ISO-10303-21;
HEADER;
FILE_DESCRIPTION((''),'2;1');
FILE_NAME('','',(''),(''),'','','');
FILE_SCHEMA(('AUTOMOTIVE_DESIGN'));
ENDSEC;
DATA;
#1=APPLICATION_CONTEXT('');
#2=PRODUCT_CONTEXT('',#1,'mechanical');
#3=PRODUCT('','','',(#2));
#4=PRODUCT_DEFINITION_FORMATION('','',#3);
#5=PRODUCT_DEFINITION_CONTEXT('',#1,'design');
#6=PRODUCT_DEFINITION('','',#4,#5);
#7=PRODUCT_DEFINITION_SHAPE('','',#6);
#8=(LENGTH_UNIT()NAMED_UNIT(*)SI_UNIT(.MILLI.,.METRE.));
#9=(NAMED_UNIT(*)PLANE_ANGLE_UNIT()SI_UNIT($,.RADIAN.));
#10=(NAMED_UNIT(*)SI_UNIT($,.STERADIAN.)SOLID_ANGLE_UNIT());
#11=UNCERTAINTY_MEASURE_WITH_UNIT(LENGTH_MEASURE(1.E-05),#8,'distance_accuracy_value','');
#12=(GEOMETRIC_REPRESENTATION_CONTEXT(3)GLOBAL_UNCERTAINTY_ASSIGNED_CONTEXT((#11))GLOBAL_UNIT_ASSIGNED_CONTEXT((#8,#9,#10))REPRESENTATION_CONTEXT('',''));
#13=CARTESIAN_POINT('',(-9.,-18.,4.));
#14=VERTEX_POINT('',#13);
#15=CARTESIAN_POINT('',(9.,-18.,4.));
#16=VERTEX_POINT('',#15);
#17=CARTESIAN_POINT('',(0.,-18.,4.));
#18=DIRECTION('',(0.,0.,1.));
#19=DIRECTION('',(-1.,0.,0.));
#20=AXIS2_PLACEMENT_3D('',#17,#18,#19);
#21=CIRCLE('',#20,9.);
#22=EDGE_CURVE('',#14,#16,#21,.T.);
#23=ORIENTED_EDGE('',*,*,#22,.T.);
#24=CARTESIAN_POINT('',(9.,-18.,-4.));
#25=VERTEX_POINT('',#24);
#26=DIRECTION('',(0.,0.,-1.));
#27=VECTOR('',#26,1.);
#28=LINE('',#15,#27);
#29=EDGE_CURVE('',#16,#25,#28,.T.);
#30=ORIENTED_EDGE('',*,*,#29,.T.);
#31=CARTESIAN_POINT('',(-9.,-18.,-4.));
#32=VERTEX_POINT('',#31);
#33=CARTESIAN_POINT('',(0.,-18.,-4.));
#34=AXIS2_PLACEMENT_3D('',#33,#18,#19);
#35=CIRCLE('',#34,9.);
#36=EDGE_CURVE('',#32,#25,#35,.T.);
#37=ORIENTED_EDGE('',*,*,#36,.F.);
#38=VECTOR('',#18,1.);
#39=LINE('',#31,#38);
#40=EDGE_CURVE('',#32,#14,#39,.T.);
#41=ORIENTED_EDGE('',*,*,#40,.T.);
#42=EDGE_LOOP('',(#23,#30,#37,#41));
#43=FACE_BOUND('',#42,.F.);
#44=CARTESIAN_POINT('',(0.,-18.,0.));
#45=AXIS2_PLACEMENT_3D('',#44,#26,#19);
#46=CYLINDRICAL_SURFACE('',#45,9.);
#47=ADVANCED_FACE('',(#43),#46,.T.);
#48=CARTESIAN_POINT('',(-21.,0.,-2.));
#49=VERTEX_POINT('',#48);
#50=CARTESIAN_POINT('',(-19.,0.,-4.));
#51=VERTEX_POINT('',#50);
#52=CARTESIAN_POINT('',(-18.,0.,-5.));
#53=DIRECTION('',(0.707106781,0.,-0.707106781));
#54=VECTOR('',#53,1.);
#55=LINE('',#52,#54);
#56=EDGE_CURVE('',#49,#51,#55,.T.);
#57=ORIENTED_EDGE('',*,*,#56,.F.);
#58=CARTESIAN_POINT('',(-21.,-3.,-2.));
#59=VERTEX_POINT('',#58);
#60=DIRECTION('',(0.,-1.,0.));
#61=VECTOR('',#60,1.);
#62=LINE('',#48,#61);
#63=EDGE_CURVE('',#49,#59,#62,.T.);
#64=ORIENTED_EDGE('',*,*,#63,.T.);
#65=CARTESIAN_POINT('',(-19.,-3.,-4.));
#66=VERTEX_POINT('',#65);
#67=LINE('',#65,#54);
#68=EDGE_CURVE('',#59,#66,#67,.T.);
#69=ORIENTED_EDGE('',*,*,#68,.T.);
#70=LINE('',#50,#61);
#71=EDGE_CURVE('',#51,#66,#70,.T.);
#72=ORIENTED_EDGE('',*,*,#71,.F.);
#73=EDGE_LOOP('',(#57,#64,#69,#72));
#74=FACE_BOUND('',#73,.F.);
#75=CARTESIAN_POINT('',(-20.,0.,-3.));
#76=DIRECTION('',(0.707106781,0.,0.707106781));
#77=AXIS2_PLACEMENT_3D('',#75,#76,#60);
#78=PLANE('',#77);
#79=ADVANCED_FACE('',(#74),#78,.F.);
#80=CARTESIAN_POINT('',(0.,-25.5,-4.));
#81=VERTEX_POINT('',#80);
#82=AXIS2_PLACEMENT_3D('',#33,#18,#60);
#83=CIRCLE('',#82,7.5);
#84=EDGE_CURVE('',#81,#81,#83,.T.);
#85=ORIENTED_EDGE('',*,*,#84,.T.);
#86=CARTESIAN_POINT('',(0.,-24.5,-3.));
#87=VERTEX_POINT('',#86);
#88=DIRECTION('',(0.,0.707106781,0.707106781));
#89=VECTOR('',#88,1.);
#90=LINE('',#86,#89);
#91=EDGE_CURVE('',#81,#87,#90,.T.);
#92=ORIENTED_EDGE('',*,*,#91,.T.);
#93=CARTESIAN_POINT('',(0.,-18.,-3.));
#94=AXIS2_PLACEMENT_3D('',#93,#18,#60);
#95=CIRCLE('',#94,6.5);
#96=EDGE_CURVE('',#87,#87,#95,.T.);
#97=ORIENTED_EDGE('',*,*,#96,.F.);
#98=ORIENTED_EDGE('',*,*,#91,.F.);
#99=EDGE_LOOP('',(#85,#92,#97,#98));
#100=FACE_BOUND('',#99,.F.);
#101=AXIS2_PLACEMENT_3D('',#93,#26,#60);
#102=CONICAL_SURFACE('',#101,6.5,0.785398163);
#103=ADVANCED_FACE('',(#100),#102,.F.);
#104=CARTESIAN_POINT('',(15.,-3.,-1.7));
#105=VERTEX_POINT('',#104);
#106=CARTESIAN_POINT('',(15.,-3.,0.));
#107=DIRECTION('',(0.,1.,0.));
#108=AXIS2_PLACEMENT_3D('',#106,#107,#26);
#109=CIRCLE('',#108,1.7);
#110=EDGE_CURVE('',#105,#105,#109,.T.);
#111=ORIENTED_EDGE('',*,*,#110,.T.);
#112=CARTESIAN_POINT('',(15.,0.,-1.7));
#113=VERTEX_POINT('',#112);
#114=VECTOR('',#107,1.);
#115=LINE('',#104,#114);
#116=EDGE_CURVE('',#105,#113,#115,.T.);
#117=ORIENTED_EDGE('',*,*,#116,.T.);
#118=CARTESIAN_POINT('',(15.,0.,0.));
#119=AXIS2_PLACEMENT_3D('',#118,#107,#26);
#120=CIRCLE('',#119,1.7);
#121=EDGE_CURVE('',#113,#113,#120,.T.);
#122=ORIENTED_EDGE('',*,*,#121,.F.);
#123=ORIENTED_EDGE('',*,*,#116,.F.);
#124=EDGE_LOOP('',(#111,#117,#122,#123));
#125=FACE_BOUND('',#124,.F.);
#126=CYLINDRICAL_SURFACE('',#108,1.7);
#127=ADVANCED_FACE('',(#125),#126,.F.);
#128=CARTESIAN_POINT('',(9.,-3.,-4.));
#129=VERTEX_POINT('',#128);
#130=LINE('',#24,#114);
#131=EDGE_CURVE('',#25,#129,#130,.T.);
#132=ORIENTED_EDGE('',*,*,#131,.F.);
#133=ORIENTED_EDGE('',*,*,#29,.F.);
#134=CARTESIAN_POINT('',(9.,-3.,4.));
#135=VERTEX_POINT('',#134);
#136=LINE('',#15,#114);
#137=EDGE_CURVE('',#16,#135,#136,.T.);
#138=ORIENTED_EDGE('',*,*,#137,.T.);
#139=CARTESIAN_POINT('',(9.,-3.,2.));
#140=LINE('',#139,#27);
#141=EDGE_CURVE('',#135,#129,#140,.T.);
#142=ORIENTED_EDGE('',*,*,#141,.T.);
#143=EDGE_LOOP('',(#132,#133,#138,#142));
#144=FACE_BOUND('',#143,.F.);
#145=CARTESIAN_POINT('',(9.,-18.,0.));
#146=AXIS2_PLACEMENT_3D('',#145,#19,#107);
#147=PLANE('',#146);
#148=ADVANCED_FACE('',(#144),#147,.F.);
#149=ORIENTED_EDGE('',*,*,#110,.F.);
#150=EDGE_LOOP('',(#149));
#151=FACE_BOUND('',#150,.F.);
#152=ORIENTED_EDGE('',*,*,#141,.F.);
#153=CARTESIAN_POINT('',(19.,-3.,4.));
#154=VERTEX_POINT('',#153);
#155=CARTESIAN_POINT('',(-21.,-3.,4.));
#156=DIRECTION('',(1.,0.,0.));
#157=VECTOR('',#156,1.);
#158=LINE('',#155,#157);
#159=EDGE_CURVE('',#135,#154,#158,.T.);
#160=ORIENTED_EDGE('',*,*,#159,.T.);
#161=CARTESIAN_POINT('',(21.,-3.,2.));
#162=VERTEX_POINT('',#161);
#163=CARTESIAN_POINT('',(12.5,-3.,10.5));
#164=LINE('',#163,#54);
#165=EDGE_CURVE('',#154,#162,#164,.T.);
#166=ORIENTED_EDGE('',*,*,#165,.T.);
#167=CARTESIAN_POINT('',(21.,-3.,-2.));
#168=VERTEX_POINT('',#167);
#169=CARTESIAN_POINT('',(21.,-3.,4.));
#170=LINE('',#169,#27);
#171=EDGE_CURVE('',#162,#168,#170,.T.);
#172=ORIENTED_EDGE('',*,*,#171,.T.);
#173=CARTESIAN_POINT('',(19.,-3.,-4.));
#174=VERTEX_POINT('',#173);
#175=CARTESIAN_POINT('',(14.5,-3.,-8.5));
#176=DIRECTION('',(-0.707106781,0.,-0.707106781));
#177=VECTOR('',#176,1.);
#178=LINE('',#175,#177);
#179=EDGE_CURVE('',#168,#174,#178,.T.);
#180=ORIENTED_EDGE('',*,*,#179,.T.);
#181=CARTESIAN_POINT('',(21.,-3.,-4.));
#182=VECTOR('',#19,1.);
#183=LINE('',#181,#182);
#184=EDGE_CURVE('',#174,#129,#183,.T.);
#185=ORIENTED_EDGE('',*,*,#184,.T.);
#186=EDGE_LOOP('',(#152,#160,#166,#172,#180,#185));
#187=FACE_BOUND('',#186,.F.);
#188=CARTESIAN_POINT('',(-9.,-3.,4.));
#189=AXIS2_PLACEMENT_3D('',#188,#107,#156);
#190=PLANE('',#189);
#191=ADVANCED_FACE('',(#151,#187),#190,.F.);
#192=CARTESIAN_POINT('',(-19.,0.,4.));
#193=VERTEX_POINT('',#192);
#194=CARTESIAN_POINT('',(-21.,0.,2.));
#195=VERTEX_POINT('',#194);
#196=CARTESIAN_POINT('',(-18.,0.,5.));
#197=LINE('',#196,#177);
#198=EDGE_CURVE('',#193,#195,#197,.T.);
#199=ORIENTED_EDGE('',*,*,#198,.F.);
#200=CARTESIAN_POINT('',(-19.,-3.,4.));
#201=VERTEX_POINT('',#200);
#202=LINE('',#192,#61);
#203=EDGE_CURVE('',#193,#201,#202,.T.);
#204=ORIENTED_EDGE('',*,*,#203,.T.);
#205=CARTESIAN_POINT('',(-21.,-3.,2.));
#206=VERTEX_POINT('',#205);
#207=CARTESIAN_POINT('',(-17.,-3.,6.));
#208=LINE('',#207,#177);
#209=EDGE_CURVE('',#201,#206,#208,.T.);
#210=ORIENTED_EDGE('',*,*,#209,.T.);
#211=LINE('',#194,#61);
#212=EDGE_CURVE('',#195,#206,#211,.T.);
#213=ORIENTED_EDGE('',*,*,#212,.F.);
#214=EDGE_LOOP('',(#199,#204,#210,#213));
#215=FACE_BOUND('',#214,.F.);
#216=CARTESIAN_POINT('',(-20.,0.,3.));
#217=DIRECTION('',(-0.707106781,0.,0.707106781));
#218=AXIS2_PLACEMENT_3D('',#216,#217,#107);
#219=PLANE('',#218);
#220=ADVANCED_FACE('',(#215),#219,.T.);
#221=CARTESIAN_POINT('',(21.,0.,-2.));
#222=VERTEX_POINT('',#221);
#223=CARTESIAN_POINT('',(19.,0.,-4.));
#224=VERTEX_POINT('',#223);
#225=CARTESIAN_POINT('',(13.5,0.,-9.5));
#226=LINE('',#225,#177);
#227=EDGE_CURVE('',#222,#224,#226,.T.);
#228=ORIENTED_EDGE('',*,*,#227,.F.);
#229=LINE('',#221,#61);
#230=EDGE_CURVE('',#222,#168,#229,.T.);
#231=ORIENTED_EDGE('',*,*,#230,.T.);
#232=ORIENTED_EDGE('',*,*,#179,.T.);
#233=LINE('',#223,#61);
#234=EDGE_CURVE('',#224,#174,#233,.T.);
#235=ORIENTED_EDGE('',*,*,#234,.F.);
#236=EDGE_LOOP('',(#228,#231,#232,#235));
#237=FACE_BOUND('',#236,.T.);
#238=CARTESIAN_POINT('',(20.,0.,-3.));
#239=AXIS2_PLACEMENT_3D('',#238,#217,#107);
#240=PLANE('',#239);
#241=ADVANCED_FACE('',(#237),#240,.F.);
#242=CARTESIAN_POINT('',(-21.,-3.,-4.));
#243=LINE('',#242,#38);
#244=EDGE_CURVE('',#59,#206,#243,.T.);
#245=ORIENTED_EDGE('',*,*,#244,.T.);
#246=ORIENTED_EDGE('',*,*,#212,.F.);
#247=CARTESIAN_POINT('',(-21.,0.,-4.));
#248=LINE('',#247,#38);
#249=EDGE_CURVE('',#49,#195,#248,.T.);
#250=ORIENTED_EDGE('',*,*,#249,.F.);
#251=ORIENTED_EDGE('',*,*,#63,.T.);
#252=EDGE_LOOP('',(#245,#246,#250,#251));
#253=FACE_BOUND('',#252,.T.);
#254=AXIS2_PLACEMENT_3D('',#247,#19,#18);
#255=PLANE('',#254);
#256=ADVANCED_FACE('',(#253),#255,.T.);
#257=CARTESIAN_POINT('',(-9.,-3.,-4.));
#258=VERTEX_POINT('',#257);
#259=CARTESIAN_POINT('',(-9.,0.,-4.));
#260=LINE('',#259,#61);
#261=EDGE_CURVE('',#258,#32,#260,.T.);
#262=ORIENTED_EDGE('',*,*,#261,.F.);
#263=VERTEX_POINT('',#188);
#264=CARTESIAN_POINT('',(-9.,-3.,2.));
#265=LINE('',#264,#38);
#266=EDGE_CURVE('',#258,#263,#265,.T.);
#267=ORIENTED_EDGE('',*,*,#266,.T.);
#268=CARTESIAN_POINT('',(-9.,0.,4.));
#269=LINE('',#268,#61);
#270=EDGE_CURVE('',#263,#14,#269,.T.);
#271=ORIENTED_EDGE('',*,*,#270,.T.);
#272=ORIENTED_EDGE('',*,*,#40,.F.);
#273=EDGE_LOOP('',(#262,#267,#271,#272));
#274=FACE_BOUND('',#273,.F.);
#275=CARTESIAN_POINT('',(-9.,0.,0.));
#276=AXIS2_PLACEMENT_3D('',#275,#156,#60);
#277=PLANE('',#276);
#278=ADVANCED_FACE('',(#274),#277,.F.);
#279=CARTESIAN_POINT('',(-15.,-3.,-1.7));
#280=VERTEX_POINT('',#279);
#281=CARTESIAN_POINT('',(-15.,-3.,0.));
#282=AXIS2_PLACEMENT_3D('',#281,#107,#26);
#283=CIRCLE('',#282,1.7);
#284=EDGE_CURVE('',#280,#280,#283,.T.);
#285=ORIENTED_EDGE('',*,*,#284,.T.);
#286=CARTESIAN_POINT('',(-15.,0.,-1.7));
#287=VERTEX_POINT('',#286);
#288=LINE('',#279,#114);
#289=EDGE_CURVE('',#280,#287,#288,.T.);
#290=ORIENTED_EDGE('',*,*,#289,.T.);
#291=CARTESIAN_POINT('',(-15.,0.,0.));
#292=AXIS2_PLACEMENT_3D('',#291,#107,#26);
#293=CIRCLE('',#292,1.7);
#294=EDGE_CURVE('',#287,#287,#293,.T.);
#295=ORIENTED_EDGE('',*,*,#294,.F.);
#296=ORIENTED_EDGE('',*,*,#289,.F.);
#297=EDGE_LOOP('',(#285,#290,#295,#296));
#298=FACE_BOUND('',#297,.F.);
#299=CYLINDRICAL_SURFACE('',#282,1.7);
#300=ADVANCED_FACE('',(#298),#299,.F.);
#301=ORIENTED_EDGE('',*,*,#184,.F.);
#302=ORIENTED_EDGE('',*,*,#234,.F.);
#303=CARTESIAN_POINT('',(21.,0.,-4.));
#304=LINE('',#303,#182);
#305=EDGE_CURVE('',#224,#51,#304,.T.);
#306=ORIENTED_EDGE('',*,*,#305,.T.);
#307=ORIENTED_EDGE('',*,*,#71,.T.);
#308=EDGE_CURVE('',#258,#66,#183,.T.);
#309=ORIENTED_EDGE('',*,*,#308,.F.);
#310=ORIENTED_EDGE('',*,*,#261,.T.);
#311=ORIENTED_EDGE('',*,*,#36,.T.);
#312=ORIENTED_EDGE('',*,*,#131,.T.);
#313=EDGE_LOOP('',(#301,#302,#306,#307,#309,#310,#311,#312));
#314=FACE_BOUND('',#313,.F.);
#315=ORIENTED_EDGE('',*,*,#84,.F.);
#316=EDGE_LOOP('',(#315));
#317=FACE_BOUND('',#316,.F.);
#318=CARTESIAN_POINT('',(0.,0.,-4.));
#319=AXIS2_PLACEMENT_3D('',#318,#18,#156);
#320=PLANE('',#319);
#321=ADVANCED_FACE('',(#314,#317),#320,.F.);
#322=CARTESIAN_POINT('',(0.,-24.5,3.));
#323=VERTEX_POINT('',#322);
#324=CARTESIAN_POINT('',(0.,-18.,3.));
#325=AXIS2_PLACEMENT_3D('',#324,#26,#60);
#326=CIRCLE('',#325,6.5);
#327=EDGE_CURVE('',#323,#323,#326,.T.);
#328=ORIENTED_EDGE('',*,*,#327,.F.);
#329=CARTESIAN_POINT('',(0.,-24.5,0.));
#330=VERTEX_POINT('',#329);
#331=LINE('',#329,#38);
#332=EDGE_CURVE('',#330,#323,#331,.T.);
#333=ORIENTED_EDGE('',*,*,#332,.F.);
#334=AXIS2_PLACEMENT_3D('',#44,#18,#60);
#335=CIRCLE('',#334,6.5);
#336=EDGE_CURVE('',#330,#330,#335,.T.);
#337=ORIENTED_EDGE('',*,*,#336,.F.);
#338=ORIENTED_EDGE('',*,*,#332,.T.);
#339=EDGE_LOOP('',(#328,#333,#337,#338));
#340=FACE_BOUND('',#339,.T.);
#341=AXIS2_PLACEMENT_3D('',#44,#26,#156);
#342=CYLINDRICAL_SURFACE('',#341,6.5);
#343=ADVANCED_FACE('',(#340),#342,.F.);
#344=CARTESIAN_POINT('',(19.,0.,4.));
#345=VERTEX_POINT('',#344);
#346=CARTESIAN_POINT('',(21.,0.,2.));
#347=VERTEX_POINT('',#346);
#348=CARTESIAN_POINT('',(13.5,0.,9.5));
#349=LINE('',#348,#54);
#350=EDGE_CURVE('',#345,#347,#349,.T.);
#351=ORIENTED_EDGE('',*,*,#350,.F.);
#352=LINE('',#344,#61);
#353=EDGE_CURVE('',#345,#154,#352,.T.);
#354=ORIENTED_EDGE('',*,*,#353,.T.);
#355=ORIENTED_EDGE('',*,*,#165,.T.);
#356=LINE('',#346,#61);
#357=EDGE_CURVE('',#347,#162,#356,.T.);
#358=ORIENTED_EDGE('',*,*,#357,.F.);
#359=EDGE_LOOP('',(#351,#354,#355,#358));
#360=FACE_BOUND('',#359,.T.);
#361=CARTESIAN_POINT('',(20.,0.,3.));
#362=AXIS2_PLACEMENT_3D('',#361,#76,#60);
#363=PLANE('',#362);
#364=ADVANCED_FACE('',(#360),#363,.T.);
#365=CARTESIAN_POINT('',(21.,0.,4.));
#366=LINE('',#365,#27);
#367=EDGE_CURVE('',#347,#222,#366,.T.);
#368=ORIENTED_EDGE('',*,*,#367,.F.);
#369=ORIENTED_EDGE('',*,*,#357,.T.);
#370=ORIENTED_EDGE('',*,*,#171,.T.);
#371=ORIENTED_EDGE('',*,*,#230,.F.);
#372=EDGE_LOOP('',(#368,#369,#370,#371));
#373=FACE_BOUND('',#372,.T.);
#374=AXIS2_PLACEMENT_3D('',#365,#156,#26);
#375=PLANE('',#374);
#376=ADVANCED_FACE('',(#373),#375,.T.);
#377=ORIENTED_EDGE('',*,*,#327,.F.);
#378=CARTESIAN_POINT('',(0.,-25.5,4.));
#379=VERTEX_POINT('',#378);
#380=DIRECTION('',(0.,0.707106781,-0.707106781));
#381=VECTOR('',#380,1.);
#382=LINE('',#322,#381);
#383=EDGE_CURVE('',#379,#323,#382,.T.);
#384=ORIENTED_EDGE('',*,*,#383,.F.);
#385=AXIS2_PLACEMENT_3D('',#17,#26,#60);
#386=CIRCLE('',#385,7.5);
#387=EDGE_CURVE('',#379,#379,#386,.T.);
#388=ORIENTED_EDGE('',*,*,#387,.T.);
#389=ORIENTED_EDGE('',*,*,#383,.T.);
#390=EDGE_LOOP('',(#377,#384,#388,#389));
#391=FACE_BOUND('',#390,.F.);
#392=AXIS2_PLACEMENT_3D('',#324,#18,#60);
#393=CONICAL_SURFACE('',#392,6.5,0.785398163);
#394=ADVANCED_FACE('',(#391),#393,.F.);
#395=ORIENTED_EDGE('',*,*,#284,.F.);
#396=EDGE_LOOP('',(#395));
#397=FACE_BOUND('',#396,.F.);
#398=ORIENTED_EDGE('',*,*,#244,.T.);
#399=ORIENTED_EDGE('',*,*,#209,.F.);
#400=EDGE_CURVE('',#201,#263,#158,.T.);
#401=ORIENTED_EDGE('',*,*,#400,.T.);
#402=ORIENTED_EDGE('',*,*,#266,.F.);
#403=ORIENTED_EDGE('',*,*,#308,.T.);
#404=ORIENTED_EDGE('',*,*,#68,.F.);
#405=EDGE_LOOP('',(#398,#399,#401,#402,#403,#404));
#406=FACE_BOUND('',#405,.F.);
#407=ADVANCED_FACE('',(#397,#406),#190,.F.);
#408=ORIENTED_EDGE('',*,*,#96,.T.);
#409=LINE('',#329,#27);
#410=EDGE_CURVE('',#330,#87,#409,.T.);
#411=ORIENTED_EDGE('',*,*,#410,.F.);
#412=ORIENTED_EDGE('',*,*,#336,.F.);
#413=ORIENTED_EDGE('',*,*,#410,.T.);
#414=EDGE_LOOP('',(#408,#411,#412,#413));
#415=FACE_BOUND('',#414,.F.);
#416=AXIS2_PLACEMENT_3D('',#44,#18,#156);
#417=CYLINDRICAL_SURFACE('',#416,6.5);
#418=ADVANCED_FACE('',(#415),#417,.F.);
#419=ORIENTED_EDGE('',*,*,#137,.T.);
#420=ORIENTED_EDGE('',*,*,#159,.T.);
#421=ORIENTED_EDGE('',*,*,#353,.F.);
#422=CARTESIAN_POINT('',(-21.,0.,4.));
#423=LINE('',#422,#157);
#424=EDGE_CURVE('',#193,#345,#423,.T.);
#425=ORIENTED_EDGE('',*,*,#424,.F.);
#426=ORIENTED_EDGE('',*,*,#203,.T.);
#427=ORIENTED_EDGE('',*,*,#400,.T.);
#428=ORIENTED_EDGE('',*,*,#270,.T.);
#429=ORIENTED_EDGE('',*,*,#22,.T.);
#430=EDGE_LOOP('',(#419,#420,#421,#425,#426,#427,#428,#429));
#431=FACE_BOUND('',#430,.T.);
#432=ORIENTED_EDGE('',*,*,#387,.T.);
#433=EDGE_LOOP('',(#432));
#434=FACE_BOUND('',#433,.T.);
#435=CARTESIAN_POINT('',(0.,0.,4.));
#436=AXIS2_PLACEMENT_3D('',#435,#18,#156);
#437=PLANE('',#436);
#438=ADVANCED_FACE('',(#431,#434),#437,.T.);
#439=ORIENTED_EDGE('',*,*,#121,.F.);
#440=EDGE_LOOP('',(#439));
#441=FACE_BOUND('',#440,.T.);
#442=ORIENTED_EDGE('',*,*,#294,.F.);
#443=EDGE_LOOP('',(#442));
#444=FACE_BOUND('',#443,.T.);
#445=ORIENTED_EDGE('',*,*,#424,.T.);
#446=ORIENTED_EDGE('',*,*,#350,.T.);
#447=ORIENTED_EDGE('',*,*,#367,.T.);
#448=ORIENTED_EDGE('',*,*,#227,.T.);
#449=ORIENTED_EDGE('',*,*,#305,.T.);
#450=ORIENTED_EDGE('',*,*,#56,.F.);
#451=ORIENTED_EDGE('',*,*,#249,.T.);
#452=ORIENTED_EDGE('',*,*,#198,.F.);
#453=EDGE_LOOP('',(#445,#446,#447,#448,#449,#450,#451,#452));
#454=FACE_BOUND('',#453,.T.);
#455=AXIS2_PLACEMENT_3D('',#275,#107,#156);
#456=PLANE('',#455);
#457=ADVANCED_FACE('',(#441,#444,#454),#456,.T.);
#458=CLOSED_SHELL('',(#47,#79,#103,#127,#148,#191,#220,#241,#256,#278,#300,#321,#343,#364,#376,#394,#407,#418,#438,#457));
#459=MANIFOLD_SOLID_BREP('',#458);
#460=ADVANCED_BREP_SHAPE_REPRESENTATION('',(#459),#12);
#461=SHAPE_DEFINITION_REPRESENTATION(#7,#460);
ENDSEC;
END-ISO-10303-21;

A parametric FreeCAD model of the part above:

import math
import FreeCAD as App
import Part
import Sketcher
from FreeCAD import Vector


def edges_at(feature, points):
    """Names of the edges that pass closest to the given points."""
    edges = feature.Shape.Edges
    near = lambda p: min(range(len(edges)), key=lambda i: edges[i].distToShape(Part.Vertex(*p))[0])
    return sorted({f"Edge{near(p) + 1}" for p in points})


def add_polygon(sketch, points):
    """Adds a closed chain of lines whose ends are joined by coincident constraints."""
    first, n = sketch.GeometryCount, len(points)
    for a, b in zip(points, points[1:] + points[:1]):
        sketch.addGeometry(Part.LineSegment(App.Vector(*a, 0), App.Vector(*b, 0)), False)
    for i in range(n):
        sketch.addConstraint(Sketcher.Constraint("Coincident", first + i, 2, first + (i + 1) % n, 1))

doc = App.newDocument("Part")
body = doc.addObject("PartDesign::Body", "Body")

# Sketch on XY plane
sketch1 = body.newObject("Sketcher::SketchObject", "Sketch")
sketch1.AttachmentSupport = (doc.getObject("XY_Plane"), [""])
sketch1.MapMode = "FlatFace"
sketch1.addGeometry(Part.LineSegment(Vector(9, 0, 0), Vector(-9, 0, 0)), False)
sketch1.addGeometry(Part.LineSegment(Vector(-9, 0, 0), Vector(-9, -18, 0)), False)
sketch1.addGeometry(Part.ArcOfCircle(Part.Circle(Vector(0, -18, 0), Vector(0, 0, 1), 9), math.radians(180), math.radians(360)), False)
sketch1.addGeometry(Part.LineSegment(Vector(9, -18, 0), Vector(9, 0, 0)), False)
sketch1.addGeometry(Part.Circle(Vector(0, -18, 0), Vector(0, 0, 1), 6), False)
sketch1.addConstraint(Sketcher.Constraint("Coincident", 0, 2, 1, 1))
sketch1.addConstraint(Sketcher.Constraint("Tangent", 1, 2, 2, 1))
sketch1.addConstraint(Sketcher.Constraint("Tangent", 2, 2, 3, 1))
sketch1.addConstraint(Sketcher.Constraint("Coincident", 3, 2, 0, 1))
sketch1.addConstraint(Sketcher.Constraint("Horizontal", 0))
sketch1.addConstraint(Sketcher.Constraint("Vertical", 1))
sketch1.addConstraint(Sketcher.Constraint("Vertical", 3))
sketch1.addConstraint(Sketcher.Constraint("Coincident", 4, 3, 2, 3))
sketch1.addConstraint(Sketcher.Constraint("Symmetric", 0, 2, 3, 2, -1, 1))
sketch1.addConstraint(Sketcher.Constraint("Equal", 0, 1))
sketch1.addConstraint(Sketcher.Constraint("Radius", 2, 9.0))
sketch1.addConstraint(Sketcher.Constraint("Diameter", 4, 13.0))
pad1 = body.newObject("PartDesign::Pad", "Pad")
pad1.Profile = sketch1
pad1.Length = 8
pad1.Midplane = True

# Sketch on XZ plane
sketch2 = body.newObject("Sketcher::SketchObject", "Sketch001")
sketch2.AttachmentSupport = (doc.getObject("XZ_Plane"), [""])
sketch2.MapMode = "FlatFace"
add_polygon(sketch2, [(-21, -4), (-21, 4), (21, 4), (21, -4)])  # lines 0-3
sketch2.addConstraint(Sketcher.Constraint("Vertical", 0))
sketch2.addConstraint(Sketcher.Constraint("Horizontal", 1))
sketch2.addConstraint(Sketcher.Constraint("Vertical", 2))
sketch2.addConstraint(Sketcher.Constraint("Horizontal", 3))
sketch2.addConstraint(Sketcher.Constraint("Symmetric", 0, 2, 2, 2, -1, 1))
sketch2.addConstraint(Sketcher.Constraint("DistanceX", 1, 1, 1, 2, 42.0))
sketch2.addConstraint(Sketcher.Constraint("DistanceY", 0, 1, 0, 2, 8.0))
pad2 = body.newObject("PartDesign::Pad", "Pad001")
pad2.Profile = sketch2
pad2.Length = 3

# Sketch on XZ plane
sketch3 = body.newObject("Sketcher::SketchObject", "Sketch002")
sketch3.AttachmentSupport = (doc.getObject("XZ_Plane"), [""])
sketch3.MapMode = "FlatFace"
sketch3.AttachmentOffset = App.Placement(Vector(0, 0, 3), App.Rotation())
sketch3.addGeometry(Part.Circle(Vector(-15, 0, 0), Vector(0, 0, 1), 1.7), False)
sketch3.addGeometry(Part.Circle(Vector(15, 0, 0), Vector(0, 0, 1), 1.7), False)
sketch3.addConstraint(Sketcher.Constraint("Equal", 0, 1))
sketch3.addConstraint(Sketcher.Constraint("Symmetric", 0, 3, 1, 3, -1, 1))
sketch3.addConstraint(Sketcher.Constraint("PointOnObject", 0, 3, -1))
sketch3.addConstraint(Sketcher.Constraint("Diameter", 0, 3.4))
sketch3.addConstraint(Sketcher.Constraint("DistanceX", 0, 3, -1, 1, 15.0))
doc.recompute()
hole = body.newObject("PartDesign::Hole", "Hole")
hole.Profile = sketch3
hole.ThreadType = "None"
hole.Diameter = 3.4
hole.DepthType = "ThroughAll"
doc.recompute()

chamfer = body.newObject("PartDesign::Chamfer", "Chamfer")
chamfer.Base = (hole, edges_at(hole, [(0, -11.5, -4), (0, -11.5, 4)]))
chamfer.Size = 1
doc.recompute()

chamfer2 = body.newObject("PartDesign::Chamfer", "Chamfer001")
chamfer2.Base = (chamfer, edges_at(chamfer, [
    (-21, -1.5, -4),
    (-21, -1.5, 4),
    (21, -1.5, -4),
    (21, -1.5, 4),
]))
chamfer2.Size = 2

doc.recompute()
